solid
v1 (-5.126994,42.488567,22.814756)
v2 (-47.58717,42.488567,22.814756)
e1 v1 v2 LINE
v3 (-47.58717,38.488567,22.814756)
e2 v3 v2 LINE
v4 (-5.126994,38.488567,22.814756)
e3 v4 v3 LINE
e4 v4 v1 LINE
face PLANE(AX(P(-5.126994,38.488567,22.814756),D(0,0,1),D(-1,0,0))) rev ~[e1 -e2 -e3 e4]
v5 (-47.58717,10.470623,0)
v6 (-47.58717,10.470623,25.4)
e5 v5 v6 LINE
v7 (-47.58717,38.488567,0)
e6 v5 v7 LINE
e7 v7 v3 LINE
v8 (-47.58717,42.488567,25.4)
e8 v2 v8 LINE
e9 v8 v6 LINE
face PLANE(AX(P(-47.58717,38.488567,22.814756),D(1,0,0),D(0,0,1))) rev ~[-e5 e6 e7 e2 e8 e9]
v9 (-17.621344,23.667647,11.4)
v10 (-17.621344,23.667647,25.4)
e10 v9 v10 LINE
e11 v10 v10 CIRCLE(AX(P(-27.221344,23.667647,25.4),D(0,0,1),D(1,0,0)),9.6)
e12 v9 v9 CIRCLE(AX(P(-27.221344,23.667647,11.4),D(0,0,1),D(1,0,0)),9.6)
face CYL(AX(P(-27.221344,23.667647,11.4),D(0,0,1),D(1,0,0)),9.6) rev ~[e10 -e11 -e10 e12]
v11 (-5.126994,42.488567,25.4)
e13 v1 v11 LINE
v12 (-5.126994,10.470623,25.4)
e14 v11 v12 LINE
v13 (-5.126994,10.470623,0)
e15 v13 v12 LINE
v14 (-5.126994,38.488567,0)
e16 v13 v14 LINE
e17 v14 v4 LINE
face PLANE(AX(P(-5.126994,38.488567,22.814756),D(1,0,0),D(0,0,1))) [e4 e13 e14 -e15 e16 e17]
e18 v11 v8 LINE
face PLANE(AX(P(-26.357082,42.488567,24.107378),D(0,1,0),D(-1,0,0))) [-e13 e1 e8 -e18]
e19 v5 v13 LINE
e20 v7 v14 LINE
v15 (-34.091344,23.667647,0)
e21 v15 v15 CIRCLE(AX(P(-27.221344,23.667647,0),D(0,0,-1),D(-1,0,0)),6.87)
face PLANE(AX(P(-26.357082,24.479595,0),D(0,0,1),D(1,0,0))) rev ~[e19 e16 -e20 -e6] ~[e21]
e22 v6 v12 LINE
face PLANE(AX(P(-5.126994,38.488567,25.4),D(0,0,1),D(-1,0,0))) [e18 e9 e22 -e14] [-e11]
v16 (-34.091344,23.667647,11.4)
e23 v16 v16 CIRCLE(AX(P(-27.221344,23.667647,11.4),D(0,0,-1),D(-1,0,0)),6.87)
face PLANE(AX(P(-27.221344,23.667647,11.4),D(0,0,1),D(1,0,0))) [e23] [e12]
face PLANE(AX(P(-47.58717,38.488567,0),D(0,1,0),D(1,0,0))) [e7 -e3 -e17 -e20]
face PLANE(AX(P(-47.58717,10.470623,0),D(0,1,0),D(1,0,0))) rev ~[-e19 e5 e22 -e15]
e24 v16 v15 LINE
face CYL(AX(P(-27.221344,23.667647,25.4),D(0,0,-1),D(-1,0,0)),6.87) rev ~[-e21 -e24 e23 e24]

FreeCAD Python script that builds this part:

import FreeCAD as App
import Part
import Sketcher
from FreeCAD import Vector
Q = App.Units.Quantity

doc = App.newDocument("Part")
params = doc.addObject("Spreadsheet::Sheet", "Params")
for row, (alias, value) in enumerate([
    ("pad1_length", "25.4 mm"),
    ("sketch2_diameter", "13.74 mm"),
    ("hole_diameter", "13.74 mm"),
    ("hole_cbore_diameter", "19.2 mm"),
    ("hole_cbore_depth", "14 mm"),
    ("pad2_length", "4 mm"),
], start=1):
    params.set(f"A{row}", alias)
    params.set(f"B{row}", "=" + value)
    params.setAlias(f"B{row}", alias)

body = doc.addObject("PartDesign::Body", "Body")

# Sketch on XY plane
sketch1 = body.newObject("Sketcher::SketchObject", "Sketch")
sketch1.AttachmentSupport = (doc.getObject("XY_Plane"), [""])
sketch1.MapMode = "FlatFace"
sketch1.addGeometry(Part.LineSegment(Vector(-47.58717, 38.488567, 0), Vector(-47.58717, 10.470623, 0)), False)
sketch1.addGeometry(Part.LineSegment(Vector(-47.58717, 10.470623, 0), Vector(-5.126994, 10.470623, 0)), False)
sketch1.addGeometry(Part.LineSegment(Vector(-5.126994, 10.470623, 0), Vector(-5.126994, 38.488567, 0)), False)
sketch1.addGeometry(Part.LineSegment(Vector(-5.126994, 38.488567, 0), Vector(-47.58717, 38.488567, 0)), False)
sketch1.addConstraint(Sketcher.Constraint("Coincident", 0, 2, 1, 1))
sketch1.addConstraint(Sketcher.Constraint("Coincident", 1, 2, 2, 1))
sketch1.addConstraint(Sketcher.Constraint("Coincident", 2, 2, 3, 1))
sketch1.addConstraint(Sketcher.Constraint("Coincident", 3, 2, 0, 1))
sketch1.addConstraint(Sketcher.Constraint("Vertical", 0))
sketch1.addConstraint(Sketcher.Constraint("Horizontal", 1))
sketch1.addConstraint(Sketcher.Constraint("Vertical", 2))
sketch1.addConstraint(Sketcher.Constraint("Horizontal", 3))
sketch1.addConstraint(Sketcher.Constraint("DistanceX", 1, 1, 1, 2, Q("42.460177 mm")))
sketch1.addConstraint(Sketcher.Constraint("DistanceY", 0, 2, 0, 1, Q("28.017944 mm")))
sketch1.addConstraint(Sketcher.Constraint("DistanceX", 0, 2, -1, 1, Q("47.58717 mm")))
sketch1.addConstraint(Sketcher.Constraint("DistanceY", -1, 1, 0, 2, Q("10.470623 mm")))
pad1 = body.newObject("PartDesign::Pad", "Pad")
pad1.Profile = sketch1
pad1.setExpression("Length", "Params.pad1_length")

# Sketch on XY plane
sketch2 = body.newObject("Sketcher::SketchObject", "Sketch001")
sketch2.AttachmentSupport = (doc.getObject("XY_Plane"), [""])
sketch2.MapMode = "FlatFace"
sketch2.AttachmentOffset = App.Placement(Vector(0, 0, 25.4), App.Rotation())
sketch2.addGeometry(Part.Circle(Vector(-27.221344, 23.667647, 0), Vector(0, 0, 1), 6.87), False)
sketch2.addConstraint(Sketcher.Constraint("Diameter", 0, Q("13.74 mm")))
sketch2.addConstraint(Sketcher.Constraint("DistanceX", 0, 3, -1, 1, Q("27.221344 mm")))
sketch2.addConstraint(Sketcher.Constraint("DistanceY", -1, 1, 0, 3, Q("23.667647 mm")))
sketch2.setExpression("Constraints[0]", "Params.sketch2_diameter")
doc.recompute()
hole = body.newObject("PartDesign::Hole", "Hole")
hole.Profile = sketch2
hole.ThreadType = "None"
hole.setExpression("Diameter", "Params.hole_diameter")
hole.DepthType = "ThroughAll"
hole.HoleCutType = "Counterbore"
hole.setExpression("HoleCutDiameter", "Params.hole_cbore_diameter")
hole.setExpression("HoleCutDepth", "Params.hole_cbore_depth")

# Sketch on XZ plane
sketch3 = body.newObject("Sketcher::SketchObject", "Sketch002")
sketch3.AttachmentSupport = (doc.getObject("XZ_Plane"), [""])
sketch3.MapMode = "FlatFace"
sketch3.AttachmentOffset = App.Placement(Vector(0, 0, -38.488567), App.Rotation())
sketch3.addGeometry(Part.LineSegment(Vector(-5.126994, 25.4, 0), Vector(-5.126994, 22.814756, 0)), False)
sketch3.addGeometry(Part.LineSegment(Vector(-5.126994, 22.814756, 0), Vector(-47.58717, 22.814756, 0)), False)
sketch3.addGeometry(Part.LineSegment(Vector(-47.58717, 22.814756, 0), Vector(-47.58717, 25.4, 0)), False)
sketch3.addGeometry(Part.LineSegment(Vector(-47.58717, 25.4, 0), Vector(-5.126994, 25.4, 0)), False)
sketch3.addConstraint(Sketcher.Constraint("Coincident", 0, 2, 1, 1))
sketch3.addConstraint(Sketcher.Constraint("Coincident", 1, 2, 2, 1))
sketch3.addConstraint(Sketcher.Constraint("Coincident", 2, 2, 3, 1))
sketch3.addConstraint(Sketcher.Constraint("Coincident", 3, 2, 0, 1))
sketch3.addConstraint(Sketcher.Constraint("Vertical", 0))
sketch3.addConstraint(Sketcher.Constraint("Horizontal", 1))
sketch3.addConstraint(Sketcher.Constraint("Vertical", 2))
sketch3.addConstraint(Sketcher.Constraint("Horizontal", 3))
sketch3.addConstraint(Sketcher.Constraint("DistanceY", -1, 1, 2, 2, Q("25.4 mm")))
sketch3.addConstraint(Sketcher.Constraint("DistanceX", 1, 2, 1, 1, Q("42.460177 mm")))
sketch3.addConstraint(Sketcher.Constraint("DistanceY", 0, 2, 0, 1, Q("2.585244 mm")))
sketch3.addConstraint(Sketcher.Constraint("DistanceX", 1, 2, -1, 1, Q("47.58717 mm")))
pad2 = body.newObject("PartDesign::Pad", "Pad001")
pad2.Profile = sketch3
pad2.setExpression("Length", "Params.pad2_length")
pad2.Reversed = True

doc.recompute()
